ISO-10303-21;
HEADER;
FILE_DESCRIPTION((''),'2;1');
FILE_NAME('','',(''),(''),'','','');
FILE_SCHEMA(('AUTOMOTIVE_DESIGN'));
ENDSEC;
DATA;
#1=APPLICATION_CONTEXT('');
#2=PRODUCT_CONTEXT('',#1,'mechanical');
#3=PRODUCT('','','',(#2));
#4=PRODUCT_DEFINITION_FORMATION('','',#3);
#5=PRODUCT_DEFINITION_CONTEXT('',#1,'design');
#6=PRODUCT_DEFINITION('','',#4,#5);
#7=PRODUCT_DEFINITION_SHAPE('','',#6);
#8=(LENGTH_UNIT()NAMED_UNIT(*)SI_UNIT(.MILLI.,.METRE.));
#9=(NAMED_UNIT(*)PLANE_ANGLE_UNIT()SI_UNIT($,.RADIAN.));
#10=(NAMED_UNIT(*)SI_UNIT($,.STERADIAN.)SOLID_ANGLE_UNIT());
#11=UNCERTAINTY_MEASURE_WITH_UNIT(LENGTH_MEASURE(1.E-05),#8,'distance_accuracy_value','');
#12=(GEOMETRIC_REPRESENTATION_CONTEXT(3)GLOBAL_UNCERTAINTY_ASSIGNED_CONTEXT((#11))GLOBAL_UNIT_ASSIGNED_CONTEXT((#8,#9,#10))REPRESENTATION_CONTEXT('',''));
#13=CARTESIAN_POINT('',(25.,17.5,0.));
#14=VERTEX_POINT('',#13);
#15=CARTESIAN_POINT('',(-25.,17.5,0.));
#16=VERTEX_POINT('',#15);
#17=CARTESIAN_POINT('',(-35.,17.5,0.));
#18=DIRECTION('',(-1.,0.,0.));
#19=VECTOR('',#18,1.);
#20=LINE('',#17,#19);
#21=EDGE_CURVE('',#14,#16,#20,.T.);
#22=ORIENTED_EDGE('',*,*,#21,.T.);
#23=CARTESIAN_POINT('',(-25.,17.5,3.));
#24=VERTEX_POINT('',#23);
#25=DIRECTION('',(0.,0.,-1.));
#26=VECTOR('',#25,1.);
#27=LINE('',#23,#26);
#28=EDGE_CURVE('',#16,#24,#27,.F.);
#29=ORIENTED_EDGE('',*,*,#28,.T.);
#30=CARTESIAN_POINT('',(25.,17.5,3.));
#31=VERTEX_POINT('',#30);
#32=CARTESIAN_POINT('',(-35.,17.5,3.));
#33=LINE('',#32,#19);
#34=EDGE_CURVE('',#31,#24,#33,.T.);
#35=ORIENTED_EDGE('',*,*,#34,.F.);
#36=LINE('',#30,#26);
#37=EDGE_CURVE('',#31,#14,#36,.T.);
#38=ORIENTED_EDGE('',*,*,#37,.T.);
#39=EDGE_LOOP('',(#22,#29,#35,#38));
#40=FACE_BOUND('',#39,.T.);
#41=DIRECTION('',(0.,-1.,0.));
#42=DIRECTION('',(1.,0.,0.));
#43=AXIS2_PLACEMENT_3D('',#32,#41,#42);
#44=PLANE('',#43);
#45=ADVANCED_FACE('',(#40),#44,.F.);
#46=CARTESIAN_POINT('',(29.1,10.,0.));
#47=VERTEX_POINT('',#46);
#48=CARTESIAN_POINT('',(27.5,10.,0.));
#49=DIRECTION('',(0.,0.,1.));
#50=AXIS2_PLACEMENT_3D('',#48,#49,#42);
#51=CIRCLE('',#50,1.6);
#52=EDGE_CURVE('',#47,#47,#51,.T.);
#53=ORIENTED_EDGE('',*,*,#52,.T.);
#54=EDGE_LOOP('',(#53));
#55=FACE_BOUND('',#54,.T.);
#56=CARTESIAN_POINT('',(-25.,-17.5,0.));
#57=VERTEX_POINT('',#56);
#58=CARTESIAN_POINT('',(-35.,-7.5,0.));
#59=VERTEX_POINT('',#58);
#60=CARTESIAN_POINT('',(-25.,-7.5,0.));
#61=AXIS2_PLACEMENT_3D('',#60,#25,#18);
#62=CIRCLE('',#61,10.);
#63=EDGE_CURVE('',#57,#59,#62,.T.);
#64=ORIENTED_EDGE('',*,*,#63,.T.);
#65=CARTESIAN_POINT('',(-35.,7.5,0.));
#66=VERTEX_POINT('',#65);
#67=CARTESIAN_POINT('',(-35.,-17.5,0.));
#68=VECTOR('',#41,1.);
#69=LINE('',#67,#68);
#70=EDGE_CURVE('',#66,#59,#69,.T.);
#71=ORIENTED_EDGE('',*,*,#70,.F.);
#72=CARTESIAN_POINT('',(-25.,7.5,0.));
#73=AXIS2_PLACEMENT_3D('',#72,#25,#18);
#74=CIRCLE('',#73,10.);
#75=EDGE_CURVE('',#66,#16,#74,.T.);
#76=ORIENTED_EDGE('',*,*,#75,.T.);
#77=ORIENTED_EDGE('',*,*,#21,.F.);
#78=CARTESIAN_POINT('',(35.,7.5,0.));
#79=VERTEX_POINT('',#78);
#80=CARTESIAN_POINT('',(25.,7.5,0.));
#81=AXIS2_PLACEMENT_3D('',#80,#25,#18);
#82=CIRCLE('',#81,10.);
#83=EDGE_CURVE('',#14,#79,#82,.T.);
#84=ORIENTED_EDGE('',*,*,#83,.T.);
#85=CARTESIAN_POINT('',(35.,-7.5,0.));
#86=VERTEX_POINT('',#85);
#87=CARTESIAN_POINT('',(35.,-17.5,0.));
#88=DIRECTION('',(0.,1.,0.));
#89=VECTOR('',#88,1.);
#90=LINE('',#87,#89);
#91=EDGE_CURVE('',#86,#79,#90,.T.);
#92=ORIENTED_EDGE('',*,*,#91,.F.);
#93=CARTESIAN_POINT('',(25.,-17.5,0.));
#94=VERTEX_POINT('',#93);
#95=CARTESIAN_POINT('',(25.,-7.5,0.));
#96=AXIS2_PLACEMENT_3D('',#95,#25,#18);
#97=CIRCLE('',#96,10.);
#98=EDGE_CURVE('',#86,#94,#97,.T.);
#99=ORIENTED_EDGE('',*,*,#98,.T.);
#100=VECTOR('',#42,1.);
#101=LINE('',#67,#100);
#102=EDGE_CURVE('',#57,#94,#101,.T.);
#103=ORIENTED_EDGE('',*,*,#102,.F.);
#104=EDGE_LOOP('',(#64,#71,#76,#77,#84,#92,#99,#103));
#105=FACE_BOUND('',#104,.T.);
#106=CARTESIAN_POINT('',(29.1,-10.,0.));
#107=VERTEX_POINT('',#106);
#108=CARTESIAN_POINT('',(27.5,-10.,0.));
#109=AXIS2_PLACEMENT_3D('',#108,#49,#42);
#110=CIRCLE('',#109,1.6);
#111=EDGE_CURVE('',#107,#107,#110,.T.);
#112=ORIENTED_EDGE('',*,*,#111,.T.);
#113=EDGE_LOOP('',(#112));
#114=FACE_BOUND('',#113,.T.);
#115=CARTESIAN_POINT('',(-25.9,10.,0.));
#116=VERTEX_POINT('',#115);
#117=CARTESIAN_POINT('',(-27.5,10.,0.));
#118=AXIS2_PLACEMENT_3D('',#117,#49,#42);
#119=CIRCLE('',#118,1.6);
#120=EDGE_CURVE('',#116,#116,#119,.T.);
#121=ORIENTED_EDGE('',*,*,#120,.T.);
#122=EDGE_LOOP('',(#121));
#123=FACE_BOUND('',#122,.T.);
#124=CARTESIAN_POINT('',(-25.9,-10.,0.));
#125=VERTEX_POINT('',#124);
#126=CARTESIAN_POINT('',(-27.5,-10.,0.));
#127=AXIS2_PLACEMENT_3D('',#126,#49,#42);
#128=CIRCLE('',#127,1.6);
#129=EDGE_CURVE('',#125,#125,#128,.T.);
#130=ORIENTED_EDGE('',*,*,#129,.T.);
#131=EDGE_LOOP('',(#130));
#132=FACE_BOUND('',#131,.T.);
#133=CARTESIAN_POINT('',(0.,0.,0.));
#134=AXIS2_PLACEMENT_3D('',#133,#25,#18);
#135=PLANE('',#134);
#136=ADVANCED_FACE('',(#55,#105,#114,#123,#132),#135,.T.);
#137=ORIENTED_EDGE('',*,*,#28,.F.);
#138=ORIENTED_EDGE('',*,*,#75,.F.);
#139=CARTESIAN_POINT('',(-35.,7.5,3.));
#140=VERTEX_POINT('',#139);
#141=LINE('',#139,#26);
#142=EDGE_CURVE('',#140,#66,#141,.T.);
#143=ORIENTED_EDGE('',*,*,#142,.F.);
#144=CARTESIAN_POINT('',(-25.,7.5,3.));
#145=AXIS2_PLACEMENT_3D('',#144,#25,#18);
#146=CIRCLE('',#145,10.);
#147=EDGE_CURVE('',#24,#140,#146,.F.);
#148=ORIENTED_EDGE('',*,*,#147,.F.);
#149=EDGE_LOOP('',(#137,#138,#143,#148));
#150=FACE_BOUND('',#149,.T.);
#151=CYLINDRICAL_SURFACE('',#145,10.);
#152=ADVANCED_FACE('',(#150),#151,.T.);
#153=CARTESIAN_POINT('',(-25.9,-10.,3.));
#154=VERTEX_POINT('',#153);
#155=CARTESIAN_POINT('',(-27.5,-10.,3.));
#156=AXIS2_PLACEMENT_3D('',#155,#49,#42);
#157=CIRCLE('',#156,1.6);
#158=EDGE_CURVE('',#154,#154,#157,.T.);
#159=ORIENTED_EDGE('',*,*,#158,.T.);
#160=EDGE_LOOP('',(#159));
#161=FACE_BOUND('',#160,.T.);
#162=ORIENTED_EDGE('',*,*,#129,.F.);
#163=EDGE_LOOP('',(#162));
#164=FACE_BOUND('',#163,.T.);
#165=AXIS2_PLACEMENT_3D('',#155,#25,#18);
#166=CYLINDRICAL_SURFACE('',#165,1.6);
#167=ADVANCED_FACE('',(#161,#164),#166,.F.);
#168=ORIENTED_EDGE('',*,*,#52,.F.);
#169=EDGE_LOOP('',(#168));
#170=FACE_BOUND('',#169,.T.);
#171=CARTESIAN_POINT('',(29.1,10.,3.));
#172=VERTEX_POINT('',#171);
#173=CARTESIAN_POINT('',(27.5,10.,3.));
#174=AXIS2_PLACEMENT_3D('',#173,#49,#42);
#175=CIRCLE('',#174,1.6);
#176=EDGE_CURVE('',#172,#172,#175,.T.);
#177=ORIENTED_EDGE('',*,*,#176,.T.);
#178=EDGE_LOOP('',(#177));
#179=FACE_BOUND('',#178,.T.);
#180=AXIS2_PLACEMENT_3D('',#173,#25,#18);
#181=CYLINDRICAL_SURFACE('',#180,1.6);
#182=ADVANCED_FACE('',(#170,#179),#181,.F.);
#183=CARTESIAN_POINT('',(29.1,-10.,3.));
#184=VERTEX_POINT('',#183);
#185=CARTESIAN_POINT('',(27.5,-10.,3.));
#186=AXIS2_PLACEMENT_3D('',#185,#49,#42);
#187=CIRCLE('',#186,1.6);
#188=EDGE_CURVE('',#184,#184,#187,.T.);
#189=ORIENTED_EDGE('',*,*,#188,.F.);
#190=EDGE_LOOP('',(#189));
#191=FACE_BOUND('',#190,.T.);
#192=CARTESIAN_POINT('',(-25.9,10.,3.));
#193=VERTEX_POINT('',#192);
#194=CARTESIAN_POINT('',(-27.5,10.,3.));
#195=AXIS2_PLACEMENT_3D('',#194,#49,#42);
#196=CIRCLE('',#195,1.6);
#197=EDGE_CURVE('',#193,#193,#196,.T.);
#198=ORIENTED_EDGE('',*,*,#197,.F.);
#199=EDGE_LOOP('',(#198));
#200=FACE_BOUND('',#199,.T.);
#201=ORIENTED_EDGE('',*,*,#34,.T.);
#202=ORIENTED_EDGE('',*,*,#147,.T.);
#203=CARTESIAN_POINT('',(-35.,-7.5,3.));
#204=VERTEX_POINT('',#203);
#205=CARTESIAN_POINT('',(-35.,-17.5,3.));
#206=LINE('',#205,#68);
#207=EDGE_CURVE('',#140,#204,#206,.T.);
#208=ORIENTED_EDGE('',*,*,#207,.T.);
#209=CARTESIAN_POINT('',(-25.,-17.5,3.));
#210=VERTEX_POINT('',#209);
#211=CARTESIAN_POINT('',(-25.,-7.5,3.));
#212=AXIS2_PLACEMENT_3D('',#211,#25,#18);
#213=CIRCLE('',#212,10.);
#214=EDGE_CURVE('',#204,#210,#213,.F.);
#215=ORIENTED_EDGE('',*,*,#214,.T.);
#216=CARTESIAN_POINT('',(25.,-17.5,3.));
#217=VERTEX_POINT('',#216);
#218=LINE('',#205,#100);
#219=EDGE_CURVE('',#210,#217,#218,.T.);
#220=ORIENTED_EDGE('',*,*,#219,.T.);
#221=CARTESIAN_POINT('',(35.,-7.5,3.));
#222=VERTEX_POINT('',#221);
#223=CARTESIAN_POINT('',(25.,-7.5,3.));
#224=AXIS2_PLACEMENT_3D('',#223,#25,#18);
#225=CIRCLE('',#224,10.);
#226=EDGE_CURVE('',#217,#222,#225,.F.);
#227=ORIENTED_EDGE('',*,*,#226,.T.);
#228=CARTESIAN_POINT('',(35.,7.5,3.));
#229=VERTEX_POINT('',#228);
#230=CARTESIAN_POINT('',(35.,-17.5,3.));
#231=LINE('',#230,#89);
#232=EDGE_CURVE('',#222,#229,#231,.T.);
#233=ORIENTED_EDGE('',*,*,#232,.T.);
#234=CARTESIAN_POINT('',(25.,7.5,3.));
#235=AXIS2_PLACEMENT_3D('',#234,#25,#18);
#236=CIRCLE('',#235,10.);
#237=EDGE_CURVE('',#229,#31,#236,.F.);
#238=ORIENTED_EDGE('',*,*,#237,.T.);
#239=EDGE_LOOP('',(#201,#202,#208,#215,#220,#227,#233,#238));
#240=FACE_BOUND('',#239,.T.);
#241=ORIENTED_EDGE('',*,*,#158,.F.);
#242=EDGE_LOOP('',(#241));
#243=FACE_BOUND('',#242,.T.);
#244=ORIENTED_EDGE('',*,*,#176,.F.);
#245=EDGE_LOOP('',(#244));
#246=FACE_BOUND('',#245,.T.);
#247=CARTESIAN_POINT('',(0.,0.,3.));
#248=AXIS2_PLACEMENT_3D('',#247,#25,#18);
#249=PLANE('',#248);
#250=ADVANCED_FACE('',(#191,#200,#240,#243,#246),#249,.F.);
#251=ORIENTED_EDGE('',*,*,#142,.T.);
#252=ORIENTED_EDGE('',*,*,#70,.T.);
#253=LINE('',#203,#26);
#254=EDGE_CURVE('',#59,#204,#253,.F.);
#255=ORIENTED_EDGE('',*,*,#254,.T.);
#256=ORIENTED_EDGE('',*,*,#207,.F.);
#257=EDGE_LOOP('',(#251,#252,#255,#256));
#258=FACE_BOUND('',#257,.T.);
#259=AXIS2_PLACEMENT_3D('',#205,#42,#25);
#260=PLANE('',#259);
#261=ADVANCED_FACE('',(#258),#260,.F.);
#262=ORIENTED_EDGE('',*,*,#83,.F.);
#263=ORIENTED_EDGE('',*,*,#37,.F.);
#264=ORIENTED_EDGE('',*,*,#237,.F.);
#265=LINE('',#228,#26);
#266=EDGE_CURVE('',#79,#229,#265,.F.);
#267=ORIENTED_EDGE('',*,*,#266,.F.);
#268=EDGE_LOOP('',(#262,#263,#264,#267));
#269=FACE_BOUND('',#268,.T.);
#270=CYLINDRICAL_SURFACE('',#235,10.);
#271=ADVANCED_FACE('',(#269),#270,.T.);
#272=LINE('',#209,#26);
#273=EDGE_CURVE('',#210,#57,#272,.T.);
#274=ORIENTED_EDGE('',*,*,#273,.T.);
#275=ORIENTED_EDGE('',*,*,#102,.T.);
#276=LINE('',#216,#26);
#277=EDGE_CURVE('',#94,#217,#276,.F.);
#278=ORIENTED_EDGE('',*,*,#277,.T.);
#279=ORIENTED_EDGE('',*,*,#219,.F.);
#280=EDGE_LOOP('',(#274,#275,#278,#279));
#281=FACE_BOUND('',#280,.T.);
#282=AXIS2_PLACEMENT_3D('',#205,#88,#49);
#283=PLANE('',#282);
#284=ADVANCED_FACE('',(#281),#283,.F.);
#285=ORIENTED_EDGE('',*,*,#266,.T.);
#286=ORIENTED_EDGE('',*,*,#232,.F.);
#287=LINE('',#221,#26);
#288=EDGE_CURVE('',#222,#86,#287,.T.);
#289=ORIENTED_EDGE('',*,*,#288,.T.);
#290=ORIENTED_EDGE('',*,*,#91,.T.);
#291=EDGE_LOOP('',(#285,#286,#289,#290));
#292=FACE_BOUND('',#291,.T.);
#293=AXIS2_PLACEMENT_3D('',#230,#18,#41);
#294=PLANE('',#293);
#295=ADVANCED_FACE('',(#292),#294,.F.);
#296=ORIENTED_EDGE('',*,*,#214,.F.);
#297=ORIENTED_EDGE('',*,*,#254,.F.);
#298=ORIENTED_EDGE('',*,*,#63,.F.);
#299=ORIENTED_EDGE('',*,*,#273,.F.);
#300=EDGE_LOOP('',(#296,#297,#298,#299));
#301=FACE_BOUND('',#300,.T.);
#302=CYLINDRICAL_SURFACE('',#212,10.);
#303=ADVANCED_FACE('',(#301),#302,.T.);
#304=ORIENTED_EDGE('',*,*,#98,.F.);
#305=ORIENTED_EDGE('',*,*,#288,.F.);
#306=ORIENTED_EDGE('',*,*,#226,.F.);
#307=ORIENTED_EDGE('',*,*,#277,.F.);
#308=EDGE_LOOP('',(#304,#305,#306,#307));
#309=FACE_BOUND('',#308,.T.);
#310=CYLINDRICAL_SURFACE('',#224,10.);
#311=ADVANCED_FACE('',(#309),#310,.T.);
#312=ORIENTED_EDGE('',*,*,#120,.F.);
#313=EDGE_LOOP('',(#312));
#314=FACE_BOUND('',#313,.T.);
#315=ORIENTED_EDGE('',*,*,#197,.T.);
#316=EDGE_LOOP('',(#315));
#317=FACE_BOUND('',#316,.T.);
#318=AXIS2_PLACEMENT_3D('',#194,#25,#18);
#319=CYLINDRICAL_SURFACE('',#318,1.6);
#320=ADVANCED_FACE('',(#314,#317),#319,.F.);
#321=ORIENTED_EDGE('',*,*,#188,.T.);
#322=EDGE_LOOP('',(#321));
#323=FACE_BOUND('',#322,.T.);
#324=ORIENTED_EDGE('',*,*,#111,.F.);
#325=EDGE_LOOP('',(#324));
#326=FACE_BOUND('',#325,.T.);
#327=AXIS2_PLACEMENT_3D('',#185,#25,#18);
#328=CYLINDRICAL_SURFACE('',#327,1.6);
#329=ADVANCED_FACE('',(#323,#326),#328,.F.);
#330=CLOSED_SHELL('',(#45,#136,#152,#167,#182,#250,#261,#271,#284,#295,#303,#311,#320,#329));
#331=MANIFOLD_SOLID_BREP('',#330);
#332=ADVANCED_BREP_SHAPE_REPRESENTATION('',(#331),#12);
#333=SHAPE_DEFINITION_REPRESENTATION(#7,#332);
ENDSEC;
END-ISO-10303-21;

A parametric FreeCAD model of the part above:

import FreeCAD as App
import Part
import Sketcher


def edges_at(feature, points):
    """Names of the edges that pass closest to the given points."""
    edges = feature.Shape.Edges
    near = lambda p: min(range(len(edges)), key=lambda i: edges[i].distToShape(Part.Vertex(*p))[0])
    return sorted({f"Edge{near(p) + 1}" for p in points})

doc = App.newDocument("Part")
body = doc.addObject("PartDesign::Body", "Body")

sketch1 = doc.addObject("Sketcher::SketchObject", "Sketch")
body.addObject(sketch1)
sketch1.AttachmentSupport = (doc.XY_Plane, [""])
sketch1.MapMode = "FlatFace"
sketch1.addGeometry([
    Part.LineSegment(App.Vector(-35, 17.5, 0), App.Vector(-35, -17.5, 0)),
    Part.LineSegment(App.Vector(-35, -17.5, 0), App.Vector(35, -17.5, 0)),
    Part.LineSegment(App.Vector(35, -17.5, 0), App.Vector(35, 17.5, 0)),
    Part.LineSegment(App.Vector(35, 17.5, 0), App.Vector(-35, 17.5, 0)),
    Part.Circle(App.Vector(-27.5, -10, 0), App.Vector(0, 0, 1), 1.6),
    Part.Circle(App.Vector(27.5, -10, 0), App.Vector(0, 0, 1), 1.6),
    Part.Circle(App.Vector(-27.5, 10, 0), App.Vector(0, 0, 1), 1.6),
    Part.Circle(App.Vector(27.5, 10, 0), App.Vector(0, 0, 1), 1.6),
], False)
sketch1.addConstraint([
    Sketcher.Constraint("Coincident", 0, 2, 1, 1),
    Sketcher.Constraint("Coincident", 1, 2, 2, 1),
    Sketcher.Constraint("Coincident", 2, 2, 3, 1),
    Sketcher.Constraint("Coincident", 3, 2, 0, 1),
    Sketcher.Constraint("Vertical", 0),
    Sketcher.Constraint("Horizontal", 1),
    Sketcher.Constraint("Vertical", 2),
    Sketcher.Constraint("Horizontal", 3),
    Sketcher.Constraint("Equal", 4, 5),
    Sketcher.Constraint("Equal", 5, 6),
    Sketcher.Constraint("Equal", 6, 7),
    Sketcher.Constraint("Symmetric", 5, 3, 6, 3, -1, 1),
    Sketcher.Constraint("Symmetric", 4, 3, 7, 3, -1, 1),
    Sketcher.Constraint("Symmetric", 0, 2, 2, 2, -1, 1),
    Sketcher.Constraint("Symmetric", 4, 3, 5, 3, -2),
    Sketcher.Constraint("Diameter", 4, 3.2),
    Sketcher.Constraint("DistanceX", 1, 1, 1, 2, 70.0),
    Sketcher.Constraint("DistanceY", 0, 2, 0, 1, 35.0),
    Sketcher.Constraint("DistanceY", 4, 3, -1, 1, 10.0),
    Sketcher.Constraint("DistanceX", 4, 3, 5, 3, 55.0),
])
pad1 = doc.addObject("PartDesign::Pad", "Pad")
body.addObject(pad1)
pad1.Profile = sketch1
pad1.Length = 3
doc.recompute()

fillet = doc.addObject("PartDesign::Fillet", "Fillet")
body.addObject(fillet)
fillet.Base = (pad1, edges_at(pad1, [
    (35, -17.5, 1.5),
    (-35, -17.5, 1.5),
    (-35, 17.5, 1.5),
    (35, 17.5, 1.5),
]))
fillet.Radius = 10

doc.recompute()
